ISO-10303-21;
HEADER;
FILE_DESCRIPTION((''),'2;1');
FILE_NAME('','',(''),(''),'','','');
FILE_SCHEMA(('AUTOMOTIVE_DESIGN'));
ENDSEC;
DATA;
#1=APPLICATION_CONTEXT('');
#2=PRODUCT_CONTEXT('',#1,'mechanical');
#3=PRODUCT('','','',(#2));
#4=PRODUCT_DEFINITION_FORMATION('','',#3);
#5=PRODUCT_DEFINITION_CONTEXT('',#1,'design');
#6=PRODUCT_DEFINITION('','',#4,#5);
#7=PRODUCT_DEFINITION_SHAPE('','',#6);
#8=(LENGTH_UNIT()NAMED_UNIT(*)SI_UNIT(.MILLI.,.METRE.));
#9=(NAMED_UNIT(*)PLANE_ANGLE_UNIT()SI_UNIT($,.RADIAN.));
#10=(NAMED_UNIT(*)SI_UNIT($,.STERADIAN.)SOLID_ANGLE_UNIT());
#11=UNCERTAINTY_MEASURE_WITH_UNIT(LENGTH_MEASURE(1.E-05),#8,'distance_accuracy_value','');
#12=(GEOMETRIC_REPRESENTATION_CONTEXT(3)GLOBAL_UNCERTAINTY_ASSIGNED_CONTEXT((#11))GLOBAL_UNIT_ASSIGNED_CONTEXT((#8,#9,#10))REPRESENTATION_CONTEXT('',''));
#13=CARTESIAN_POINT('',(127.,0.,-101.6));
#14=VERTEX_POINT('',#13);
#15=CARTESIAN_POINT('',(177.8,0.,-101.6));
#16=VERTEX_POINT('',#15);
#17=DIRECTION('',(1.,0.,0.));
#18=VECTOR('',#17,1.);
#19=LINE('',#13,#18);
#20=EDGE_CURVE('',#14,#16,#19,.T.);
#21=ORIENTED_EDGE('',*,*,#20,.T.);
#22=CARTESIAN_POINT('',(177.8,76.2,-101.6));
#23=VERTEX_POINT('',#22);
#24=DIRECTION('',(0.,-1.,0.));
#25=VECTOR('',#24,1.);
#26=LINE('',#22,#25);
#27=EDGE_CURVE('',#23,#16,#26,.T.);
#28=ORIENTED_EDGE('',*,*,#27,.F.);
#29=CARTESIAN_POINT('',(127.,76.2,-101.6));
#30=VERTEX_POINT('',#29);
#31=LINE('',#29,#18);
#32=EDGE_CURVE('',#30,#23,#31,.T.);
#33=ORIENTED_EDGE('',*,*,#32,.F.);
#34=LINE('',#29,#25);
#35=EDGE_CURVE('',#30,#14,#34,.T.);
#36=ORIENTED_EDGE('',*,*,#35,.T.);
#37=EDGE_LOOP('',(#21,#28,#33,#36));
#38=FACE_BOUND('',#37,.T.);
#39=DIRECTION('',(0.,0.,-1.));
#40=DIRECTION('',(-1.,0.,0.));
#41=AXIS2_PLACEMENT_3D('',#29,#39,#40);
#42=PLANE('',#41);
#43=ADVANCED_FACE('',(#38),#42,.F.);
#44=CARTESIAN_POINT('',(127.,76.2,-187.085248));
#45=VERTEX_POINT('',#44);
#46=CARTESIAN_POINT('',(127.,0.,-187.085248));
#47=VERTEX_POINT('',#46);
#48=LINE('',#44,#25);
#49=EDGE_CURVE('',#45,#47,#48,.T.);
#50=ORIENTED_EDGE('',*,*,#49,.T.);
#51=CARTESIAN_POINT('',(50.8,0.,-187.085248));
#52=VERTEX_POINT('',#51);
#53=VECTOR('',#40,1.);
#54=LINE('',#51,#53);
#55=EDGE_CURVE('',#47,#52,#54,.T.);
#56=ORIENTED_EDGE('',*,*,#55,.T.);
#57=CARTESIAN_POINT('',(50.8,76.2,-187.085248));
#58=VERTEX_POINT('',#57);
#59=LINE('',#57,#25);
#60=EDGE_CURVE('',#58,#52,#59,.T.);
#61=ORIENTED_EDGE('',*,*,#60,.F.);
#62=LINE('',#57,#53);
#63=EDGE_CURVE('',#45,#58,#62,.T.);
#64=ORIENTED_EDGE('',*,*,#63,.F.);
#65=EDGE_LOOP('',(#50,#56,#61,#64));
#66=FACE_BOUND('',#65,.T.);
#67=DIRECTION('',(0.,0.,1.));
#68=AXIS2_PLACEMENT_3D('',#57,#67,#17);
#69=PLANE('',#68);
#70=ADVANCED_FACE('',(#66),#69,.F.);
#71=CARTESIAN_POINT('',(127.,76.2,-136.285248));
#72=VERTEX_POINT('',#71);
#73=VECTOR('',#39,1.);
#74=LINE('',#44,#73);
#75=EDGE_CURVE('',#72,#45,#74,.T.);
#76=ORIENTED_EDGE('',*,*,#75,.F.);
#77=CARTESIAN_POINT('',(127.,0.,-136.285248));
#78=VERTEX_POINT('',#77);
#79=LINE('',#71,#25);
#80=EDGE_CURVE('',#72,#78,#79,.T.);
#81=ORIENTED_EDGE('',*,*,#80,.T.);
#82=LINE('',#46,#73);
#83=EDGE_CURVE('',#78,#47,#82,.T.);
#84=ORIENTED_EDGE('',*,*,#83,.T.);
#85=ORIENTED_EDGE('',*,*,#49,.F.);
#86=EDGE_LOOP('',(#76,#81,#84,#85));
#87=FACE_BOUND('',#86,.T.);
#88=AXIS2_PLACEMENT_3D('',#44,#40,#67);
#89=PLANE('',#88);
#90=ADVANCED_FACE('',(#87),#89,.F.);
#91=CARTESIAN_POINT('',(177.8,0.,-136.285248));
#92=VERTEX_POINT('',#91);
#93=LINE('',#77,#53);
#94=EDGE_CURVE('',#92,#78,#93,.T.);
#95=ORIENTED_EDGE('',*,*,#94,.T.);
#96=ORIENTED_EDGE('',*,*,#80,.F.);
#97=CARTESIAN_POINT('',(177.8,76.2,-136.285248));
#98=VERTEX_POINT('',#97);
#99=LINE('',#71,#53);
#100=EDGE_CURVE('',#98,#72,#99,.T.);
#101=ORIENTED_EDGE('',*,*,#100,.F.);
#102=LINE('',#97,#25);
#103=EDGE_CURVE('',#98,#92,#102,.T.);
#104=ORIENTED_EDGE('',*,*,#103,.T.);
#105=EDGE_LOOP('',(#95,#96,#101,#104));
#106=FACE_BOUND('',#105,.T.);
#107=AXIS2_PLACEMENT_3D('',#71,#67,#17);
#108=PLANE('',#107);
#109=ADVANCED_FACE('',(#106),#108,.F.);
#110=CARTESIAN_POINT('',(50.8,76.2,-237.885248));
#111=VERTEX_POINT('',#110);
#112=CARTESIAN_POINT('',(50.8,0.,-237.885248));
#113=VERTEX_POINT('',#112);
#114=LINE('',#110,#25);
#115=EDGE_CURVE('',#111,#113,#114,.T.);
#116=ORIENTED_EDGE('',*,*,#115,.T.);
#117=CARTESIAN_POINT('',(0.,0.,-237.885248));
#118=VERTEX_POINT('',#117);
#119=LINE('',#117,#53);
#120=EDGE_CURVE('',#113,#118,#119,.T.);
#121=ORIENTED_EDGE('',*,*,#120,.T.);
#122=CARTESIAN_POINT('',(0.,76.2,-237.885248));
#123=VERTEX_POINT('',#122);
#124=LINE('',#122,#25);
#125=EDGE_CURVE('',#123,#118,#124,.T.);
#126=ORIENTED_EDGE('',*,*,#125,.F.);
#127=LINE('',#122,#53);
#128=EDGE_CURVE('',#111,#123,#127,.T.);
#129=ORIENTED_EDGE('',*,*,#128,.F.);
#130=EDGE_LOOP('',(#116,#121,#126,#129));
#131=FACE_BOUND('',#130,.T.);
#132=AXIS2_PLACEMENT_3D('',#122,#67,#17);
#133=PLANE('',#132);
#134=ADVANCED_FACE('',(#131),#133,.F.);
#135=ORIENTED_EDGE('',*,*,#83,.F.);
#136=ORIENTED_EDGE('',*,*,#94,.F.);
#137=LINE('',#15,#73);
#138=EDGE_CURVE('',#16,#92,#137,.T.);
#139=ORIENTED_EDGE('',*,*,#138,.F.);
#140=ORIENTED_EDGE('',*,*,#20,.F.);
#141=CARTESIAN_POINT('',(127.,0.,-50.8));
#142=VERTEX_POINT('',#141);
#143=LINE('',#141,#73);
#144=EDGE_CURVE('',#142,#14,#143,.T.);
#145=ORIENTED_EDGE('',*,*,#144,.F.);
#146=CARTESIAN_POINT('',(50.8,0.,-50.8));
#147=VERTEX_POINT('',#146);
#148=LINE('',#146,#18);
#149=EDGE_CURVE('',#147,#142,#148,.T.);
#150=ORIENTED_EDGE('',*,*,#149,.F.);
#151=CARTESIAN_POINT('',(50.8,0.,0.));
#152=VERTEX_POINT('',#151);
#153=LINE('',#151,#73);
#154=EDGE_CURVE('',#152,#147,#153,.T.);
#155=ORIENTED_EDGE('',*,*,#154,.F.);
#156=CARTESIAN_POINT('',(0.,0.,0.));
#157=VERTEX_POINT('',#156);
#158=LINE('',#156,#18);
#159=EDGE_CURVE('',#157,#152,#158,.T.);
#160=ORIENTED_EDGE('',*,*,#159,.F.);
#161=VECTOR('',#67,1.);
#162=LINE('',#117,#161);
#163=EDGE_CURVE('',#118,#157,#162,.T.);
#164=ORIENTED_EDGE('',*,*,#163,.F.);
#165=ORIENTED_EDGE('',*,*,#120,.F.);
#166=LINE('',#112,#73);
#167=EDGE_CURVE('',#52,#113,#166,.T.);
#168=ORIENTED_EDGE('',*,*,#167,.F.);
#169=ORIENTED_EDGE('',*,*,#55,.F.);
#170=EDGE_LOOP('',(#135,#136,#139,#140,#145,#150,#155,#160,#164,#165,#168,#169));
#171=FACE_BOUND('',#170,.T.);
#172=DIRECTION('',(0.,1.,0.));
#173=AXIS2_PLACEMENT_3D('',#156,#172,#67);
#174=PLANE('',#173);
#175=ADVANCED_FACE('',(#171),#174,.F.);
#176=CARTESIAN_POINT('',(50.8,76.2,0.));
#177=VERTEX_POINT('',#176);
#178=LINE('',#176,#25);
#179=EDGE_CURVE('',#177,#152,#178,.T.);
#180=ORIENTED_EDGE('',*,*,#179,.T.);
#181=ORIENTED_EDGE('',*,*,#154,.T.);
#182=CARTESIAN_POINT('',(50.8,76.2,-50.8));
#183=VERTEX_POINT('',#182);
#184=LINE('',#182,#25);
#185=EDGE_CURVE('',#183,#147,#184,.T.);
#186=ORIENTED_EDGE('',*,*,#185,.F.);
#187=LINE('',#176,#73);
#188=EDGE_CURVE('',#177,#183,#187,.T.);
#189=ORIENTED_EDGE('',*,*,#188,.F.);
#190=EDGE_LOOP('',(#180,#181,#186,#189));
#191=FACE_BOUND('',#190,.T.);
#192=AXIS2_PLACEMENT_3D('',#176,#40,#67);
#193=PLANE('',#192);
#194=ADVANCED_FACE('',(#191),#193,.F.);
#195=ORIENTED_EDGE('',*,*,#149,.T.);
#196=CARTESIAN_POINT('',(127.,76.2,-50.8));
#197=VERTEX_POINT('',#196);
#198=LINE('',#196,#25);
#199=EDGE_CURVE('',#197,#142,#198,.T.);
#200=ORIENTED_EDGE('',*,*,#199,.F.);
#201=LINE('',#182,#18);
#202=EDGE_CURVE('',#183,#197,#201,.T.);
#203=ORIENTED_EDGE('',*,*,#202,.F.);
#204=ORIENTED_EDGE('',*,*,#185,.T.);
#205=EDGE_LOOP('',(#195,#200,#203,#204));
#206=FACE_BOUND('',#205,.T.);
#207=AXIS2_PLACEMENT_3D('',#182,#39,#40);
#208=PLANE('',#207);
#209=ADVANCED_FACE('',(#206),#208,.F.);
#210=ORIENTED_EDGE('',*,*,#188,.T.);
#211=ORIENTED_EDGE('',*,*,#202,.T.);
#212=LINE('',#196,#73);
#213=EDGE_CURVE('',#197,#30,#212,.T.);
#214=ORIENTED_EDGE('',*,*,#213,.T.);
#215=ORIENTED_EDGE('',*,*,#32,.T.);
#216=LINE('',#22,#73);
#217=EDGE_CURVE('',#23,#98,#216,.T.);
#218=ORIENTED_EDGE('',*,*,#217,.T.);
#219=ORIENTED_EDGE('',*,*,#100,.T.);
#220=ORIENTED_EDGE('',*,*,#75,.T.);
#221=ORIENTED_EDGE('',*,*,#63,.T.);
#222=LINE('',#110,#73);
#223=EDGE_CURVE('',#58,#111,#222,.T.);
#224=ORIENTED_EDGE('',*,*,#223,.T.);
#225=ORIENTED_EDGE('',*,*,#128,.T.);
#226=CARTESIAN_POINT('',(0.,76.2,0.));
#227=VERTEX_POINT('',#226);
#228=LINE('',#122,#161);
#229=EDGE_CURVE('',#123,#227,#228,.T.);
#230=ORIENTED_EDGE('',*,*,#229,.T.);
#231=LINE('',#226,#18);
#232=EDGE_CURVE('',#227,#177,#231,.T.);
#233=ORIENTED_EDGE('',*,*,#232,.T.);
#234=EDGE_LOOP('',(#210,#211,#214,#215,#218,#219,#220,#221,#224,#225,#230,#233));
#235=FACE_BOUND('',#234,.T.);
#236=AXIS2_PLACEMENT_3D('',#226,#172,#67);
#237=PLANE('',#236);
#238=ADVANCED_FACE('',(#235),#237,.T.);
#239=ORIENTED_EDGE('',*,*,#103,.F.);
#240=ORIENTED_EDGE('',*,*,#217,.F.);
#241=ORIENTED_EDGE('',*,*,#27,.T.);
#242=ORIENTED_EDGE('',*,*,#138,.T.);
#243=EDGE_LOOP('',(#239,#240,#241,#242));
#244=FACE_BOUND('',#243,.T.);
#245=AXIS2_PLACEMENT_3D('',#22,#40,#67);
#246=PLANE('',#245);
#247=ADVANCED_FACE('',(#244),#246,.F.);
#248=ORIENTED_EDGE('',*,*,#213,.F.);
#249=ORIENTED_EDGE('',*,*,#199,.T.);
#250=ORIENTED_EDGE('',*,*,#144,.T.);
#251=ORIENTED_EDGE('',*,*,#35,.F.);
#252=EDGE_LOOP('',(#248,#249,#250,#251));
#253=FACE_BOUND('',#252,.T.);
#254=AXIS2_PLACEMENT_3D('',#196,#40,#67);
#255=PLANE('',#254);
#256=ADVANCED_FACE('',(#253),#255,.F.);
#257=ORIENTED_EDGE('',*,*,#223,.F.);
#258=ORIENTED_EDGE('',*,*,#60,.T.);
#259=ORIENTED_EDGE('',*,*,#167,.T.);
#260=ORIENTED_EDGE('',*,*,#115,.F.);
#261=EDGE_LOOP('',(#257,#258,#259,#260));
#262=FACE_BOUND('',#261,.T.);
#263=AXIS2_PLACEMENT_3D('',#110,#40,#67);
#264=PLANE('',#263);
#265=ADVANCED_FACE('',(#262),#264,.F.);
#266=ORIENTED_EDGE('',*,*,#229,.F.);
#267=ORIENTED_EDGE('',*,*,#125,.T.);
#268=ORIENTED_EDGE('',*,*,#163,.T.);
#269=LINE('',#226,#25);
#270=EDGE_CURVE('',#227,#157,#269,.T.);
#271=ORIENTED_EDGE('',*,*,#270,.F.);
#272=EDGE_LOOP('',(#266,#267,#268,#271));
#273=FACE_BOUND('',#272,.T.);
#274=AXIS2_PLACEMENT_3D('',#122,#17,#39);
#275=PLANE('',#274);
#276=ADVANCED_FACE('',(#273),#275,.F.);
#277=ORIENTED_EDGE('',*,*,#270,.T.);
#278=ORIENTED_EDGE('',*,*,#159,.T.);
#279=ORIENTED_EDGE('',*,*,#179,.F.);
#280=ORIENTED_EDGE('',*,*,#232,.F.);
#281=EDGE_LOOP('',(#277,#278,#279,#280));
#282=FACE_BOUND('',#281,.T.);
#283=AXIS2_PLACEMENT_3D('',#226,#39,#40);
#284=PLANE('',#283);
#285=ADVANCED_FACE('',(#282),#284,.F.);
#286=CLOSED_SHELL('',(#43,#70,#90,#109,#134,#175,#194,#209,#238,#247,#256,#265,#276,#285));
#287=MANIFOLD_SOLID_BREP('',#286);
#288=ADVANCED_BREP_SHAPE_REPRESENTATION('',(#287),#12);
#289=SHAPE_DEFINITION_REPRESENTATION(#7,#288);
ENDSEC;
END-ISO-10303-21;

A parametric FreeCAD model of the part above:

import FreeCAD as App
import Part
import Sketcher
from FreeCAD import Vector
Q = App.Units.Quantity


def add_polygon(sketch, points):
    """Adds a closed chain of lines whose ends are joined by coincident constraints."""
    first, n = sketch.GeometryCount, len(points)
    for a, b in zip(points, points[1:] + points[:1]):
        sketch.addGeometry(Part.LineSegment(App.Vector(*a, 0), App.Vector(*b, 0)), False)
    for i in range(n):
        sketch.addConstraint(Sketcher.Constraint("Coincident", first + i, 2, first + (i + 1) % n, 1))

doc = App.newDocument("Part")
body = doc.addObject("PartDesign::Body", "Body")

sketch1 = body.newObject("Sketcher::SketchObject", "Sketch")
sketch1.AttachmentSupport = (doc.getObject("XZ_Plane"), [""])
sketch1.MapMode = "FlatFace"
add_polygon(sketch1, [(0, 0), (50.8, 0), (50.8, -50.8), (127, -50.8), (127, -101.6), (177.8, -101.6), (177.8, -136.285248), (127, -136.285248), (127, -187.085248), (50.8, -187.085248), (50.8, -237.885248), (0, -237.885248)])
sketch1.addConstraint([
    Sketcher.Constraint("Horizontal", 0),
    Sketcher.Constraint("Vertical", 1),
    Sketcher.Constraint("Horizontal", 2),
    Sketcher.Constraint("Vertical", 3),
    Sketcher.Constraint("Horizontal", 4),
    Sketcher.Constraint("Vertical", 5),
    Sketcher.Constraint("Horizontal", 6),
    Sketcher.Constraint("Vertical", 7),
    Sketcher.Constraint("Horizontal", 8),
    Sketcher.Constraint("Vertical", 9),
    Sketcher.Constraint("Horizontal", 10),
    Sketcher.Constraint("Vertical", 11),
    Sketcher.Constraint("Coincident", 11, 2, -1, 1),
    Sketcher.Constraint("Vertical", 3, 2, 6, 2),
    Sketcher.Constraint("Vertical", 1, 2, 8, 2),
    Sketcher.Constraint("Equal", 0, 4),
    Sketcher.Constraint("Equal", 10, 1),
    Sketcher.Constraint("Equal", 1, 3),
    Sketcher.Constraint("Equal", 3, 7),
    Sketcher.Constraint("Equal", 7, 9),
    Sketcher.Constraint("DistanceX", 0, 1, 0, 2, Q("2 in")),
    Sketcher.Constraint("DistanceX", 2, 1, 2, 2, Q("3 in")),
    Sketcher.Constraint("DistanceY", 5, 2, 5, 1, 34.685248),
])
pad1 = body.newObject("PartDesign::Pad", "Pad")
pad1.Profile = sketch1
pad1.Length = Q("3 in")
pad1.Reversed = True

doc.recompute()
